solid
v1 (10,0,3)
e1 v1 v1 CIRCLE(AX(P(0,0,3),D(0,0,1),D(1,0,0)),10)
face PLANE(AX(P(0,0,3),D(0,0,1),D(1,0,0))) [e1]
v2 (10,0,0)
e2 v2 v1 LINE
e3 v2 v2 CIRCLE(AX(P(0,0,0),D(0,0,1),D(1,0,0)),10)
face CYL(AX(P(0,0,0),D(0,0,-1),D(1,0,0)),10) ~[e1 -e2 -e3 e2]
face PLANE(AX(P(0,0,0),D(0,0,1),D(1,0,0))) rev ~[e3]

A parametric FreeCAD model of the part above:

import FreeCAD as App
import Part
import Sketcher

doc = App.newDocument("Part")
body = doc.addObject("PartDesign::Body", "Body")

sketch1 = body.newObject("Sketcher::SketchObject", "Sketch")
sketch1.AttachmentSupport = (doc.getObject("XY_Plane"), [""])
sketch1.MapMode = "FlatFace"
sketch1.addGeometry(Part.Circle(App.Vector(0, 0, 0), App.Vector(0, 0, 1), 10), False)
sketch1.addConstraint([
    Sketcher.Constraint("Coincident", 0, 3, -1, 1),
    Sketcher.Constraint("Diameter", 0, 20.0),
])
pad1 = body.newObject("PartDesign::Pad", "Pad")
pad1.Profile = sketch1
pad1.Length = 3

doc.recompute()
